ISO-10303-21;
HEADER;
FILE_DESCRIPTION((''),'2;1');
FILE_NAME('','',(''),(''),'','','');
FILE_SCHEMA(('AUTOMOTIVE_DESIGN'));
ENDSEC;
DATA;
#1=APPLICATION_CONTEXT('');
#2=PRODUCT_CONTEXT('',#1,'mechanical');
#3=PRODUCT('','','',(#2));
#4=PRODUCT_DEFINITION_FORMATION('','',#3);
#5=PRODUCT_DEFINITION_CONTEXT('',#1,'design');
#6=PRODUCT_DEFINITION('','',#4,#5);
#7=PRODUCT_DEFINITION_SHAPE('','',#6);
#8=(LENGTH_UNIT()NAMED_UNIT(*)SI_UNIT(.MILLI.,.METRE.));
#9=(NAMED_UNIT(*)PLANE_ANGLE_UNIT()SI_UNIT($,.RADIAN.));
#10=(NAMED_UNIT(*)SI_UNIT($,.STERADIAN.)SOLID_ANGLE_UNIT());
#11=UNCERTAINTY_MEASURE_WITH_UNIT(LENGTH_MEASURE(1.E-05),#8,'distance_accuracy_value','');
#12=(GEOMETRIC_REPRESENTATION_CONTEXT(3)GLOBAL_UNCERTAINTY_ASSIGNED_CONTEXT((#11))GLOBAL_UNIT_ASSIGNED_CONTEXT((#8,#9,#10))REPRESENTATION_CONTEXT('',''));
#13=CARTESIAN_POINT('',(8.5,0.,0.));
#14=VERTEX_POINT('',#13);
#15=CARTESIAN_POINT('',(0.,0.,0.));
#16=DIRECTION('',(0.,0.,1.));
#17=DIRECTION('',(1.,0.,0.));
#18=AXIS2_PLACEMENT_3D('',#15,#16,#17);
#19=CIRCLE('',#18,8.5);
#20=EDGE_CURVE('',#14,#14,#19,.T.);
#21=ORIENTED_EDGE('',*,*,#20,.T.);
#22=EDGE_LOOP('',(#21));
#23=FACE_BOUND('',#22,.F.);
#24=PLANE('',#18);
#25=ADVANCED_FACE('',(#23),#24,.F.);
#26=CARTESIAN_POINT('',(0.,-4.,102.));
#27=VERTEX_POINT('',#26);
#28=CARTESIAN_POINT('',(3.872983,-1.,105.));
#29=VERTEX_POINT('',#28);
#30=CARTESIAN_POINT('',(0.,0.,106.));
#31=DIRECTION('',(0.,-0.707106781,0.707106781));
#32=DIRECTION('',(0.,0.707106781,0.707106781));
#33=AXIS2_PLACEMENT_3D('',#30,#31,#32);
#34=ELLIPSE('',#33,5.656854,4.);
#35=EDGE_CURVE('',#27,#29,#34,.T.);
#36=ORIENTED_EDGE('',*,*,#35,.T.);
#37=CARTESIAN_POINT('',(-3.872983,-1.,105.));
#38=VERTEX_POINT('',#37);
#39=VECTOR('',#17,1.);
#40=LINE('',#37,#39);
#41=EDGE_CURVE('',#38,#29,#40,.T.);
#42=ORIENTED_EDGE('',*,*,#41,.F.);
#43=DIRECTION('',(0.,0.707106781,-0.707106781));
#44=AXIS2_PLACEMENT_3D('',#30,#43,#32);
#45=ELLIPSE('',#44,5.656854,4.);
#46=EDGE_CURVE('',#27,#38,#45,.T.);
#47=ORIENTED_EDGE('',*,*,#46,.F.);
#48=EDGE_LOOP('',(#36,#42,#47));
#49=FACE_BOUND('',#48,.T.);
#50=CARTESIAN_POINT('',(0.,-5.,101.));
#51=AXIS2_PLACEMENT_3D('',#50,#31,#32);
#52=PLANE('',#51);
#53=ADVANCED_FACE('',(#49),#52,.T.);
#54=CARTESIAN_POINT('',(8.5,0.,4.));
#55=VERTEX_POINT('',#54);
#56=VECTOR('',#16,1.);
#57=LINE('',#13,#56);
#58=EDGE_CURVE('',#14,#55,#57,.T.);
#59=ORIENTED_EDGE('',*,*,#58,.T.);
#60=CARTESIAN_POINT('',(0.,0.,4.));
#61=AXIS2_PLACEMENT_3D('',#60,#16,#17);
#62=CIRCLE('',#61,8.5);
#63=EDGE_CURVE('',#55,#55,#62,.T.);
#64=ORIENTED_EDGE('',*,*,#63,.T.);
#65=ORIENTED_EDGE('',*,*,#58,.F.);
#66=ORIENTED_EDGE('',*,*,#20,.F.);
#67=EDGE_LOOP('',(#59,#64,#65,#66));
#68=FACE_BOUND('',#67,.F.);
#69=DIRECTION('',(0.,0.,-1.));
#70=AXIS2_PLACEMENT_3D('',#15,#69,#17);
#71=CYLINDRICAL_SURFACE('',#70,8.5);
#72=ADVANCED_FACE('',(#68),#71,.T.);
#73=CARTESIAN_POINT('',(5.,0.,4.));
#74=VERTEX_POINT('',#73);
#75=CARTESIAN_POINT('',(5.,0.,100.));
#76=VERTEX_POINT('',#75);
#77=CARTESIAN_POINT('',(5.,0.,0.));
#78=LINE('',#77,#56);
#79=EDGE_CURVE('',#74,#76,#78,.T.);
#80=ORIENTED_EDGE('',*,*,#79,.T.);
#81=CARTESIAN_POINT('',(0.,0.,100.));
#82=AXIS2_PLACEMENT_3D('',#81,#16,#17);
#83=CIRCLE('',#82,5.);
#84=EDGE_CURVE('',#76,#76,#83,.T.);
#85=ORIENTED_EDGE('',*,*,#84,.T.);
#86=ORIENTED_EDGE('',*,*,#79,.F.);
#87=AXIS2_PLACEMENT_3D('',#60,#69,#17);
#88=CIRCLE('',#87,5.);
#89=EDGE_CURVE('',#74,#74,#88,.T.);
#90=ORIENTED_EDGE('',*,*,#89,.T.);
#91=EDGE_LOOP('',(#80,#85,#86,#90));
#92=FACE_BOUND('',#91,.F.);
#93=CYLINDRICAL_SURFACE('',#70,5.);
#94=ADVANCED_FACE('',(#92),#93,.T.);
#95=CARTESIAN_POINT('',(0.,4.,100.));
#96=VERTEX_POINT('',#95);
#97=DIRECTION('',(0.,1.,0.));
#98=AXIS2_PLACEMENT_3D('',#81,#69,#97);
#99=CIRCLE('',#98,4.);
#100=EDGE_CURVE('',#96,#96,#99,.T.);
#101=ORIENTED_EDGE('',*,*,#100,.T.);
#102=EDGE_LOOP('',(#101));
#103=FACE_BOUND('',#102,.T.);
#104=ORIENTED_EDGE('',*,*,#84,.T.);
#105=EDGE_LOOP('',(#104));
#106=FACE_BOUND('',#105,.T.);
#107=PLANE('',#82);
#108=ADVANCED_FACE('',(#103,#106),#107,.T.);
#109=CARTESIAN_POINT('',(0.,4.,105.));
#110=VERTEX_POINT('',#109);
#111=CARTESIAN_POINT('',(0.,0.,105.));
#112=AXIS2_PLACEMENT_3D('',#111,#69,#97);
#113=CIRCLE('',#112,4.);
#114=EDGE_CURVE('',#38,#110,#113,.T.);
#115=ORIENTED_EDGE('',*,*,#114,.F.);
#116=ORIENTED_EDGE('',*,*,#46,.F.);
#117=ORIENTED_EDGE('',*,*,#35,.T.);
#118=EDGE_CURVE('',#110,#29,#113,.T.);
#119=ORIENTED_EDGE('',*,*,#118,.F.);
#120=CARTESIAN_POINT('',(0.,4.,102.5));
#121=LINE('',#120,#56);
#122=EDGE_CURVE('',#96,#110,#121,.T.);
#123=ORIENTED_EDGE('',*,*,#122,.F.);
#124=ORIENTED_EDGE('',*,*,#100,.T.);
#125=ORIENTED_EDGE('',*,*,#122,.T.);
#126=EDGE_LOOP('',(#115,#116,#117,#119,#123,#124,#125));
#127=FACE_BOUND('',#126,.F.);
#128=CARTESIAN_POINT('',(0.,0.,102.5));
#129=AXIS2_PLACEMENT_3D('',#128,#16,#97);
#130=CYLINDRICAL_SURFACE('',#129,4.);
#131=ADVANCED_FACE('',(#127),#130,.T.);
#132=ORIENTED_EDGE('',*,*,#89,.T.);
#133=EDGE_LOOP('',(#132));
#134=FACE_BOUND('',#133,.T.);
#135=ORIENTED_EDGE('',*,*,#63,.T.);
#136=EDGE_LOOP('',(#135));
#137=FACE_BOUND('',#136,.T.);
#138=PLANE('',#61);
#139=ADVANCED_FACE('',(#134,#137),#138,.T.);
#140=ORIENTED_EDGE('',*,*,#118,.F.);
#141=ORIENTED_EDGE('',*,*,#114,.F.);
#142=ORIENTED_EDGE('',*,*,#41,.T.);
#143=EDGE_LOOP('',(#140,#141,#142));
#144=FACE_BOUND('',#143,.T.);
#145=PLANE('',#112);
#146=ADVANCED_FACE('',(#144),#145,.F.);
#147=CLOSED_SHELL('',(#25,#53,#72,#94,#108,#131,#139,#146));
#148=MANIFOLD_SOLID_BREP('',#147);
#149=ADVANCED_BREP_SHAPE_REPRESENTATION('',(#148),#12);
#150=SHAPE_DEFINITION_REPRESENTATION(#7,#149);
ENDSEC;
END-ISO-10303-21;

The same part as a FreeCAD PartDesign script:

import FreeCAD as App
import Part
import Sketcher
Q = App.Units.Quantity


def add_polygon(sketch, points):
    """Adds a closed chain of lines whose ends are joined by coincident constraints."""
    first, n = sketch.GeometryCount, len(points)
    for a, b in zip(points, points[1:] + points[:1]):
        sketch.addGeometry(Part.LineSegment(App.Vector(*a, 0), App.Vector(*b, 0)), False)
    for i in range(n):
        sketch.addConstraint(Sketcher.Constraint("Coincident", first + i, 2, first + (i + 1) % n, 1))

doc = App.newDocument("Part")
body = doc.addObject("PartDesign::Body", "Body")

sketch1 = body.newObject("Sketcher::SketchObject", "Sketch")
sketch1.AttachmentSupport = (doc.getObject("XY_Plane"), [""])
sketch1.MapMode = "FlatFace"
sketch1.addGeometry(Part.Circle(App.Vector(0, 0, 0), App.Vector(0, 0, 1), 8), False)
sketch1.addConstraint([
    Sketcher.Constraint("Coincident", 0, 3, -1, 1),
    Sketcher.Constraint("Diameter", 0, Q("17 mm")),
])
pad1 = body.newObject("PartDesign::Pad", "Pad")
pad1.Profile = sketch1
pad1.Length = 4

sketch2 = body.newObject("Sketcher::SketchObject", "Sketch001")
sketch2.AttachmentSupport = (doc.getObject("XY_Plane"), [""])
sketch2.MapMode = "FlatFace"
sketch2.addGeometry(Part.Circle(App.Vector(0, 0, 0), App.Vector(0, 0, 1), 5), False)
sketch2.addConstraint([
    Sketcher.Constraint("Coincident", 0, 3, -1, 1),
    Sketcher.Constraint("Diameter", 0, Q("10 mm")),
])
pad2 = body.newObject("PartDesign::Pad", "Pad001")
pad2.Profile = sketch2
pad2.Length = 100

sketch3 = body.newObject("Sketcher::SketchObject", "Sketch002")
sketch3.AttachmentSupport = (doc.getObject("YZ_Plane"), [""])
sketch3.MapMode = "FlatFace"
add_polygon(sketch3, [(0, 105), (0, 100), (4, 100), (4, 105)])
sketch3.addConstraint([
    Sketcher.Constraint("Vertical", 0),
    Sketcher.Constraint("Horizontal", 1),
    Sketcher.Constraint("Vertical", 2),
    Sketcher.Constraint("Horizontal", 3),
    Sketcher.Constraint("PointOnObject", 0, 2, -2),
    Sketcher.Constraint("DistanceX", 1, 1, 1, 2, Q("4 mm")),
    Sketcher.Constraint("DistanceY", 0, 2, 0, 1, Q("5 mm")),
    Sketcher.Constraint("DistanceY", -1, 1, 0, 2, Q("100 mm")),
])
revolution = body.newObject("PartDesign::Revolution", "Revolution")
revolution.Profile = sketch3
revolution.ReferenceAxis = (sketch3, ["V_Axis"])
revolution.Angle = 360

sketch4 = body.newObject("Sketcher::SketchObject", "Sketch003")
sketch4.AttachmentSupport = (doc.getObject("YZ_Plane"), [""])
sketch4.MapMode = "FlatFace"
add_polygon(sketch4, [(0, 106), (-5, 106), (-5, 101)])
sketch4.addConstraint([
    Sketcher.Constraint("Horizontal", 0),
    Sketcher.Constraint("Vertical", 1),
    Sketcher.Constraint("PointOnObject", 2, 2, -2),
    Sketcher.Constraint("Equal", 0, 1),
    Sketcher.Constraint("DistanceX", 0, 2, 0, 1, Q("5 mm")),
    Sketcher.Constraint("DistanceY", -1, 1, 0, 2, Q("106 mm")),
])
pocket1 = body.newObject("PartDesign::Pocket", "Pocket")
pocket1.Profile = sketch4
pocket1.Type = "ThroughAll"
pocket1.Midplane = True

doc.recompute()
